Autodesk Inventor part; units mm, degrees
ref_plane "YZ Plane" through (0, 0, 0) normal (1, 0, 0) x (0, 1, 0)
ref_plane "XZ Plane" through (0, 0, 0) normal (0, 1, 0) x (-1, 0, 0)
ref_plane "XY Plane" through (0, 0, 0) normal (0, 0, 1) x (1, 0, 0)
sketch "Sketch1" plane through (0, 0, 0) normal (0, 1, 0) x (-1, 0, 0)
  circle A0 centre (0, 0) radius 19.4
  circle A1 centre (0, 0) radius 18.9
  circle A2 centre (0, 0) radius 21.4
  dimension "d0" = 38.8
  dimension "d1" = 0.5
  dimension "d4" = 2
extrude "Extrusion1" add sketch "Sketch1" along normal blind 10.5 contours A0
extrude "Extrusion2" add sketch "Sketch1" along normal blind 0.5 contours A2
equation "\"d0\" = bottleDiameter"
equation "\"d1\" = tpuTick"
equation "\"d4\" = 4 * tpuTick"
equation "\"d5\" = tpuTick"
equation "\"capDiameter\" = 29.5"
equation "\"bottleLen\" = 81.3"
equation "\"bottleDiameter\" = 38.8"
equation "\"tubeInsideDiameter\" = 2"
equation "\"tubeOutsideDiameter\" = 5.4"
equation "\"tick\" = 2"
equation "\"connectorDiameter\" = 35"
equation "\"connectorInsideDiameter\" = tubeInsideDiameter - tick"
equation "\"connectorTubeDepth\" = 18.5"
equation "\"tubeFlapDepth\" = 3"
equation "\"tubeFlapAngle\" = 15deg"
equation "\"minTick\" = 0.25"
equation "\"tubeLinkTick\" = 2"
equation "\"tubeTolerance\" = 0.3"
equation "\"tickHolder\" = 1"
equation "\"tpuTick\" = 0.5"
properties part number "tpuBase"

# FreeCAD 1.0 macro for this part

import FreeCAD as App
import Part
import Sketcher
from FreeCAD import Vector

doc = App.newDocument("Part")
params = doc.addObject("Spreadsheet::Sheet", "Params")
for row, (alias, value) in enumerate([
    ("sketch1_diameter", "38.8 mm"),
    ("sketch1_diameter2", "37.8 mm"),
    ("pad1_length", "10.5 mm"),
    ("sketch2_diameter", "38.8 mm"),
    ("sketch2_diameter2", "42.8 mm"),
    ("pad2_length", "0.5 mm"),
], start=1):
    params.set(f"A{row}", alias)
    params.set(f"B{row}", "=" + value)
    params.setAlias(f"B{row}", alias)

body = doc.addObject("PartDesign::Body", "Body")

sketch1 = doc.addObject("Sketcher::SketchObject", "Sketch")
body.addObject(sketch1)
sketch1.AttachmentSupport = (doc.XZ_Plane, [""])
sketch1.MapMode = "FlatFace"
sketch1.addGeometry([
    Part.Circle(Vector(0, 0, 0), Vector(0, 0, 1), 19),
    Part.Circle(Vector(0, 0, 0), Vector(0, 0, 1), 19),
], False)
sketch1.addConstraint([
    Sketcher.Constraint("Coincident", 0, 3, -1, 1),
    Sketcher.Constraint("Coincident", 1, 3, -1, 1),
    Sketcher.Constraint("Diameter", 0, 38.8),
    Sketcher.Constraint("Diameter", 1, 37.8),
])
sketch1.setExpression("Constraints[2]", "Params.sketch1_diameter")
sketch1.setExpression("Constraints[3]", "Params.sketch1_diameter2")
pad1 = doc.addObject("PartDesign::Pad", "Pad")
body.addObject(pad1)
pad1.Profile = sketch1
pad1.setExpression("Length", "Params.pad1_length")
pad1.Reversed = True

sketch2 = doc.addObject("Sketcher::SketchObject", "Sketch001")
body.addObject(sketch2)
sketch2.AttachmentSupport = (doc.XZ_Plane, [""])
sketch2.MapMode = "FlatFace"
sketch2.addGeometry([
    Part.Circle(Vector(0, 0, 0), Vector(0, 0, 1), 21),
    Part.Circle(Vector(0, 0, 0), Vector(0, 0, 1), 19),
], False)
sketch2.addConstraint([
    Sketcher.Constraint("Coincident", 0, 3, -1, 1),
    Sketcher.Constraint("Coincident", 1, 3, -1, 1),
    Sketcher.Constraint("Diameter", 1, 38.8),
    Sketcher.Constraint("Diameter", 0, 42.8),
])
sketch2.setExpression("Constraints[2]", "Params.sketch2_diameter")
sketch2.setExpression("Constraints[3]", "Params.sketch2_diameter2")
pad2 = doc.addObject("PartDesign::Pad", "Pad001")
body.addObject(pad2)
pad2.Profile = sketch2
pad2.setExpression("Length", "Params.pad2_length")
pad2.Reversed = True

doc.recompute()
